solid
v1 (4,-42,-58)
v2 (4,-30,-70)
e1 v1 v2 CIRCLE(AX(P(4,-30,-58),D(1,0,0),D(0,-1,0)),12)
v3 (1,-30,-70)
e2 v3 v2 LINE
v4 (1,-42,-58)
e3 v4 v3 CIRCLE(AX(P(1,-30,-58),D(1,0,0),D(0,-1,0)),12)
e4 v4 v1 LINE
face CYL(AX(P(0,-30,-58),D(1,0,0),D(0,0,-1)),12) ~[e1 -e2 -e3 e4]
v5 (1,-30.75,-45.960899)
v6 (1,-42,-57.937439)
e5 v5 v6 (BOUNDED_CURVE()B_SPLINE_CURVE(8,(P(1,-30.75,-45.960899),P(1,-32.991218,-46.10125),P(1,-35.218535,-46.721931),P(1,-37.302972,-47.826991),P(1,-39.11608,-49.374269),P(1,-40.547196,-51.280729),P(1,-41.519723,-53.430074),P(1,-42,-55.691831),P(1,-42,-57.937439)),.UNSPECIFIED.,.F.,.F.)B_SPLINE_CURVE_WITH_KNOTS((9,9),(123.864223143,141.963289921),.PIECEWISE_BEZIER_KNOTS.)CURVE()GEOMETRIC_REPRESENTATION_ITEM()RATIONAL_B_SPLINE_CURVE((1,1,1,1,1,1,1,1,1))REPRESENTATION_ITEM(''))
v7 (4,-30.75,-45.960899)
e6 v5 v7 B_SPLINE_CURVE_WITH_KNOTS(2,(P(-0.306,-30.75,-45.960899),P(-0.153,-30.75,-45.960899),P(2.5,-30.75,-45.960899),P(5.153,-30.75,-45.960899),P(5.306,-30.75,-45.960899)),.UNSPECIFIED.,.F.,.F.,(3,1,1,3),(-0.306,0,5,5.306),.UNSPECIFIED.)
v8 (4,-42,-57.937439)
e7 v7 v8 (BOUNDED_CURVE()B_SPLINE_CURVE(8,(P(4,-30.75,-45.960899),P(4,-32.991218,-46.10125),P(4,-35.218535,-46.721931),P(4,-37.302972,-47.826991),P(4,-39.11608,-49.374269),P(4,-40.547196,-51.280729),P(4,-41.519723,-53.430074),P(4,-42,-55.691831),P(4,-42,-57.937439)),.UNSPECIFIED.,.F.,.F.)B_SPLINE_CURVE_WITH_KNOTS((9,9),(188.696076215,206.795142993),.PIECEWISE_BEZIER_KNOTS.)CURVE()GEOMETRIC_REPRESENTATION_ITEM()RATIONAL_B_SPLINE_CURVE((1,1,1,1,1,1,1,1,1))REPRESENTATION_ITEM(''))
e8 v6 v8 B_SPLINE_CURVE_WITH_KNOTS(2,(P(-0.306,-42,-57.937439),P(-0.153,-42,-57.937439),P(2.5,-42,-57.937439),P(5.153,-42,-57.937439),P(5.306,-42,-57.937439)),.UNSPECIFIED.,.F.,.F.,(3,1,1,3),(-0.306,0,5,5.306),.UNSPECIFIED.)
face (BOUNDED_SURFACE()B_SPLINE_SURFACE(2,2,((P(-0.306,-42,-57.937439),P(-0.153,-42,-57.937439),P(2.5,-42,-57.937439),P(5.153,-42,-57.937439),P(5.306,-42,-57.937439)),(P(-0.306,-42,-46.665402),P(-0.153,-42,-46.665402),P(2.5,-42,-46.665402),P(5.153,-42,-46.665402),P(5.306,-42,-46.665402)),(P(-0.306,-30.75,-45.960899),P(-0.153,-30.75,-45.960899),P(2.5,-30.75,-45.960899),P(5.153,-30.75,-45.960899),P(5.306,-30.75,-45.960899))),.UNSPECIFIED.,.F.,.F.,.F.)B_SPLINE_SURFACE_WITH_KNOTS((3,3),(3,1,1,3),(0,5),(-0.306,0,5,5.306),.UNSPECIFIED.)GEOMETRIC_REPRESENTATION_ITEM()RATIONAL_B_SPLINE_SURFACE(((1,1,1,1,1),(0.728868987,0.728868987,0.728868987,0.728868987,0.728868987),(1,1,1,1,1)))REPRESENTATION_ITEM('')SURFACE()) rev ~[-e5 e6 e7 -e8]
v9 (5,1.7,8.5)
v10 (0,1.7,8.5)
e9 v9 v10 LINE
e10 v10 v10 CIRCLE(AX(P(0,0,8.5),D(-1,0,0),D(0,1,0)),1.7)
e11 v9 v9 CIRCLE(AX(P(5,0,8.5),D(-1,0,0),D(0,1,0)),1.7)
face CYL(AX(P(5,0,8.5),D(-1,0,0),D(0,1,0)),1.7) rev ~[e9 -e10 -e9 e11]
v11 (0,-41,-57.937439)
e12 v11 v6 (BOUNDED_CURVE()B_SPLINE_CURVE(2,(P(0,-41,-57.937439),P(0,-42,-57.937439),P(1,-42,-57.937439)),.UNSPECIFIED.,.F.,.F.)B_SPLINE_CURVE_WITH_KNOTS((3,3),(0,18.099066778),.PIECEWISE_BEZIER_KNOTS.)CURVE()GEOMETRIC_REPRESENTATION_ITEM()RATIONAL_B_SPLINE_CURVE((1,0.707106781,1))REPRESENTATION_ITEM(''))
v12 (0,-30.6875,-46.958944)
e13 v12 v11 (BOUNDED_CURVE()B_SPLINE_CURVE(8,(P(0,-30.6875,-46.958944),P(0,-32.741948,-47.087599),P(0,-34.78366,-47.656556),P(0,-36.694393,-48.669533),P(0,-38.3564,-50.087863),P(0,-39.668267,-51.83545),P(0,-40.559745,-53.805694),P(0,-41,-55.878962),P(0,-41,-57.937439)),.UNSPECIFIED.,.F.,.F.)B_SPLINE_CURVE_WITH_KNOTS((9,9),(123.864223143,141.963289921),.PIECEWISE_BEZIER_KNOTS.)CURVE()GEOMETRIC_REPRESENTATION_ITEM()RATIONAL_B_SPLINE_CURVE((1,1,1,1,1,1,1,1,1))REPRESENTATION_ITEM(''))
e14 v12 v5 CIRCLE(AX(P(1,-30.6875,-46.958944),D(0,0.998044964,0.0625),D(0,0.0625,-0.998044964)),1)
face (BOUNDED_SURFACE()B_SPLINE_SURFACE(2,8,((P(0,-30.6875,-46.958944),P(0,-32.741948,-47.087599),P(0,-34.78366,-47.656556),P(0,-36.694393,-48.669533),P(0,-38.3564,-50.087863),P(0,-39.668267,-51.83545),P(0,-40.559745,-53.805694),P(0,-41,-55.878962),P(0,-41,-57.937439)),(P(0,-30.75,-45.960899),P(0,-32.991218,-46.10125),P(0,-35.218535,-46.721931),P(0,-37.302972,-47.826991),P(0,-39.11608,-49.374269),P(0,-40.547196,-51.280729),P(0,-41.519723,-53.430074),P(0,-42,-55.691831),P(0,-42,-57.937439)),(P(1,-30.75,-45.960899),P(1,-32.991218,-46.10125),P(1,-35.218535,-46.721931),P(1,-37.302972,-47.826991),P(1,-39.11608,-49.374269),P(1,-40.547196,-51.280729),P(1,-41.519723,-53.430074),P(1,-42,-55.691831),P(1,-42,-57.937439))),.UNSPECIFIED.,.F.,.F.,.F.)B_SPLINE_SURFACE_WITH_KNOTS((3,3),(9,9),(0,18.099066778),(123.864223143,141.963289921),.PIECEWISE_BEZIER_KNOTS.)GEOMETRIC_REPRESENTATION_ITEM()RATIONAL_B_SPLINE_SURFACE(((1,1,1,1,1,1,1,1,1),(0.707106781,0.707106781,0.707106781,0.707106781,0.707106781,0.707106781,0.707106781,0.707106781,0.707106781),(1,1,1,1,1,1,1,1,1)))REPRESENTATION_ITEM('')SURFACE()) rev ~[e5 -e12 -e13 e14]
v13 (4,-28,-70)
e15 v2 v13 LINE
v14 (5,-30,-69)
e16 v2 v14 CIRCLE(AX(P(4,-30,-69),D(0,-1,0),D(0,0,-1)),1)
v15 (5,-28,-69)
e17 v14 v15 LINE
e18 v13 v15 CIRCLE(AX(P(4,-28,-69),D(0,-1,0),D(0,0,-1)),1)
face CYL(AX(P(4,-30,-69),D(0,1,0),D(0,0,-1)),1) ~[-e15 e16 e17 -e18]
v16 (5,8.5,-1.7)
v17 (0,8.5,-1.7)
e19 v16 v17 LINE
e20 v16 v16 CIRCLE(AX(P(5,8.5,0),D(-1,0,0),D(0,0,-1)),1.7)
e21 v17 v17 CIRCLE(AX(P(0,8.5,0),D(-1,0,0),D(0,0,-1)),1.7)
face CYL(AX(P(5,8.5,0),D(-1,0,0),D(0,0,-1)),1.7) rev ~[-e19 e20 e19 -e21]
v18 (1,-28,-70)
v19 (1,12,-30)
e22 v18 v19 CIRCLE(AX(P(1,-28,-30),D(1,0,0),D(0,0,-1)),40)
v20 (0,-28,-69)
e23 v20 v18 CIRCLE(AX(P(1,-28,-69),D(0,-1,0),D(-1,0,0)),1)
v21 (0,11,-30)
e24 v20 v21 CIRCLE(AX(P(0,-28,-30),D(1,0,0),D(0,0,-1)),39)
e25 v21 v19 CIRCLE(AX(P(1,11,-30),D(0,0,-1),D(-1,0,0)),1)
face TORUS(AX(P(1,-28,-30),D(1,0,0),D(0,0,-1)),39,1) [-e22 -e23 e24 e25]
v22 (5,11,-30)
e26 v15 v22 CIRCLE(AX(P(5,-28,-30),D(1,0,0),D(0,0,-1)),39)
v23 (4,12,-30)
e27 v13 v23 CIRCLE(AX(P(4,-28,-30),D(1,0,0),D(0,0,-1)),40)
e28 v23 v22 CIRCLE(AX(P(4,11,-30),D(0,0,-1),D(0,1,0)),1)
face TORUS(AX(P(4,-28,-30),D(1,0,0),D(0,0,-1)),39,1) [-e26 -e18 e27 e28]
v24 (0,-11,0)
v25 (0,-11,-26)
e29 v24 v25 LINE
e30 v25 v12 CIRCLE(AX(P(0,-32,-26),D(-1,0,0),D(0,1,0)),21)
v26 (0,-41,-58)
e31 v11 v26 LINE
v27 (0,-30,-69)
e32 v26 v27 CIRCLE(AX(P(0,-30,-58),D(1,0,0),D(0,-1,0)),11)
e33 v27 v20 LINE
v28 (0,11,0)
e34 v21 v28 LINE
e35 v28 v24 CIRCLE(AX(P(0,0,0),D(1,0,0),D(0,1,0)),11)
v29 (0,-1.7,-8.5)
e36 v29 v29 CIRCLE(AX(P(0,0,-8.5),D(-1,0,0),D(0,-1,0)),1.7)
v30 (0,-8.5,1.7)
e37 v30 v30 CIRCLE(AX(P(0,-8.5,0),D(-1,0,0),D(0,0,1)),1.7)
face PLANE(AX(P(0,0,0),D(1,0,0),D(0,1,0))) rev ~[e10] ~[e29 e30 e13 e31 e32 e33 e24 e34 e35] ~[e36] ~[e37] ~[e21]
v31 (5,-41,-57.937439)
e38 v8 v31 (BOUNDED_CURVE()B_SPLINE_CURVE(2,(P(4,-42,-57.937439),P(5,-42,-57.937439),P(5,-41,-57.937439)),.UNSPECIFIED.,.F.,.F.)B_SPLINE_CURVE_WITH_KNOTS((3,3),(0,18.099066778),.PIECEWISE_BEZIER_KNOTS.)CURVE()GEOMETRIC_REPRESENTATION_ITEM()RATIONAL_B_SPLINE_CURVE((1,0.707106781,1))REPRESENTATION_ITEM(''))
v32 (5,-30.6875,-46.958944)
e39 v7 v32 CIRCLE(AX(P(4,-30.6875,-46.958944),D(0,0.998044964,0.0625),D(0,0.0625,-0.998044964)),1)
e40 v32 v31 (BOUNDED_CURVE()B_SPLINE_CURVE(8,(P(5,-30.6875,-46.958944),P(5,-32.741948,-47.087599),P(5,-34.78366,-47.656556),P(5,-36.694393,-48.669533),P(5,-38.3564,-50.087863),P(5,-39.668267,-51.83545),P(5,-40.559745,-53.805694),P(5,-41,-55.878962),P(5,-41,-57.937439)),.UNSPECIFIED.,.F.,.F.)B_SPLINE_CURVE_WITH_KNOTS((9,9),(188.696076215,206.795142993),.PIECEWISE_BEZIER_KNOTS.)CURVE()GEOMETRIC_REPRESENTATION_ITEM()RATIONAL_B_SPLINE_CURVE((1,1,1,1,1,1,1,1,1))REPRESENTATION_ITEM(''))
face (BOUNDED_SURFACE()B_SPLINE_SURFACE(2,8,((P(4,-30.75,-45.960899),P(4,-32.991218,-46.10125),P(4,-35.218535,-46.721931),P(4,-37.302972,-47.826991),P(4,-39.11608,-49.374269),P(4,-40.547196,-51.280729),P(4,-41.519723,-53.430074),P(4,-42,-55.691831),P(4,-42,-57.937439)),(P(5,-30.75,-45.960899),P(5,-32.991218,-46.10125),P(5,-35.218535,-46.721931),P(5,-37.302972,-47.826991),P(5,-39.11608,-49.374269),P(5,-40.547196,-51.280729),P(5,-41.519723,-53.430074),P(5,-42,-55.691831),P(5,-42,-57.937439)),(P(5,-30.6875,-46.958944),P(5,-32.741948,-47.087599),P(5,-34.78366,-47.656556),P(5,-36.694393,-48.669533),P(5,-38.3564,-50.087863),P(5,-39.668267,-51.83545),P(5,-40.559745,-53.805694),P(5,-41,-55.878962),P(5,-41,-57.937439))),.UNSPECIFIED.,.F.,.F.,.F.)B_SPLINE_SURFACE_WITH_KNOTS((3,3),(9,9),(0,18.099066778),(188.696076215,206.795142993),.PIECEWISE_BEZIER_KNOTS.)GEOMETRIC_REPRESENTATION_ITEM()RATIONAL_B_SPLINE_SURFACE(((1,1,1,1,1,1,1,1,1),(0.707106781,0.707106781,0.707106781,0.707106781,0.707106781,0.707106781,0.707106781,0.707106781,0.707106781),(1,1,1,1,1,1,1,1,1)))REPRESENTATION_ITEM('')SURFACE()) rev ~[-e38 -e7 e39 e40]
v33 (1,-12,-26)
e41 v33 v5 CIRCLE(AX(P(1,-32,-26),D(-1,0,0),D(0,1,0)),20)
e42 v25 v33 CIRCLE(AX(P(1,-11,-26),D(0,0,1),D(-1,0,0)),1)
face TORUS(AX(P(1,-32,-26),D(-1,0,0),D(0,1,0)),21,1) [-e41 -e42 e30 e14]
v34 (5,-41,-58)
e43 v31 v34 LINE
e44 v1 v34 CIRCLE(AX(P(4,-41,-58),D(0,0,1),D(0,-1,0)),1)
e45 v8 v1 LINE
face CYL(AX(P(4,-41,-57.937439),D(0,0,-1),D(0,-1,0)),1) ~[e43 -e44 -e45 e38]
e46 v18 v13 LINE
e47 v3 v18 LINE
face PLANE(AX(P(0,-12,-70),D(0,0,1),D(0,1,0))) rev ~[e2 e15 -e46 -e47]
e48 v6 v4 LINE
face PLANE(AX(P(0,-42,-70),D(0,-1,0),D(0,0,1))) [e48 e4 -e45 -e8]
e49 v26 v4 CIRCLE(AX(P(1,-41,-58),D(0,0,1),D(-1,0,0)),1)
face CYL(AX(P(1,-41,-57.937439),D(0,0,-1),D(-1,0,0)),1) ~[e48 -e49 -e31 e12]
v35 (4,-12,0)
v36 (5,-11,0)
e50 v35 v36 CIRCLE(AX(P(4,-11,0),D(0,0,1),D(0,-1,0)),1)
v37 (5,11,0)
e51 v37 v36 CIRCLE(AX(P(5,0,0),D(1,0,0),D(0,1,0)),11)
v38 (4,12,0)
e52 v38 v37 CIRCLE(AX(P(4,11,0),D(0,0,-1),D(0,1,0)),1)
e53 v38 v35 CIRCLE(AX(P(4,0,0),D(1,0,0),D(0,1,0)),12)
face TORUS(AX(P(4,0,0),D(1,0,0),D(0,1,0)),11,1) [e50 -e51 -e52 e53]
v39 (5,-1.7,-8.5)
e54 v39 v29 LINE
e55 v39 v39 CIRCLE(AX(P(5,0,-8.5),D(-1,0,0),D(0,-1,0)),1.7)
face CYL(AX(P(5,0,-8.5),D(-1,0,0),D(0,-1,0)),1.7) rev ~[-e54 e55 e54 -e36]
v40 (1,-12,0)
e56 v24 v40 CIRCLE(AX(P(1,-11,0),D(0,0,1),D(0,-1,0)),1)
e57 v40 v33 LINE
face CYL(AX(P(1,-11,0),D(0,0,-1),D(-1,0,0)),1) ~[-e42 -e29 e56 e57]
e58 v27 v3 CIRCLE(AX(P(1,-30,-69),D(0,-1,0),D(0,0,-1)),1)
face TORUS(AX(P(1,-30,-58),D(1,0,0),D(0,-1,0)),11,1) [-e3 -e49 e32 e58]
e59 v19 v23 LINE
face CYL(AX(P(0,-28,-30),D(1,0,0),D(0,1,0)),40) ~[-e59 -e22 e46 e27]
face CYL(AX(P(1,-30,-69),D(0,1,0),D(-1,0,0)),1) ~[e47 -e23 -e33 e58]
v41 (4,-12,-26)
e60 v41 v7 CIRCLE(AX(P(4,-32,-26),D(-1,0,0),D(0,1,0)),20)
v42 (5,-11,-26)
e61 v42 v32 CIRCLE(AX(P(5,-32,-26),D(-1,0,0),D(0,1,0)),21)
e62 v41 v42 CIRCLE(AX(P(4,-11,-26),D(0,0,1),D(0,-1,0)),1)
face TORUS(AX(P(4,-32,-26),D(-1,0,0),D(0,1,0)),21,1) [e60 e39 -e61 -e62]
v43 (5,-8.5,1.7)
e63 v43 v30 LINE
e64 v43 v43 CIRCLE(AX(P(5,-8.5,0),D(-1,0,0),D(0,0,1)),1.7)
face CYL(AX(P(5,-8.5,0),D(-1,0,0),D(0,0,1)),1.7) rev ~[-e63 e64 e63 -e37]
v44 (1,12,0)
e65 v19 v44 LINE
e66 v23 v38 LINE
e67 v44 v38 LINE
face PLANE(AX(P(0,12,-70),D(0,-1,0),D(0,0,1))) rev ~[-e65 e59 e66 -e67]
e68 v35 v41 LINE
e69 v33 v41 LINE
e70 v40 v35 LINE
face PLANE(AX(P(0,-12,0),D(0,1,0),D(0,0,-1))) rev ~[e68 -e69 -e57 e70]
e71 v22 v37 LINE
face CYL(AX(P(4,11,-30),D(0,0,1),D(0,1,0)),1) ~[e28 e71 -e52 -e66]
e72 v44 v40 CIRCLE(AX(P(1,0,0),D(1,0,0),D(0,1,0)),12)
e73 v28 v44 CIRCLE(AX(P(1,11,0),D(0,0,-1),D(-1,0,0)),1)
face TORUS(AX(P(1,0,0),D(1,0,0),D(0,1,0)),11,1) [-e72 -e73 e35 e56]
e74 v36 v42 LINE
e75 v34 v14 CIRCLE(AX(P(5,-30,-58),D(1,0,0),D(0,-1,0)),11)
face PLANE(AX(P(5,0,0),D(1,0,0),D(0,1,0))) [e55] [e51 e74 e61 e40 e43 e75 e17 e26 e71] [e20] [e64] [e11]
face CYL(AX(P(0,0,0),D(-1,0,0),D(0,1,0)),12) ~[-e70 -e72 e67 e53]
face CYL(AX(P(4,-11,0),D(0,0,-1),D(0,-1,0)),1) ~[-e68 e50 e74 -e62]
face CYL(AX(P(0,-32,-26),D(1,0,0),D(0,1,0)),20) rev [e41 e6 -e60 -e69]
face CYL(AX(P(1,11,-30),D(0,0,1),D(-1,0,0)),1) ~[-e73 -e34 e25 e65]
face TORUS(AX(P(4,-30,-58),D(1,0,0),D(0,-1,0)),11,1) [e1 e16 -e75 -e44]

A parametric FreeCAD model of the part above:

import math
import FreeCAD as App
import Part
import Sketcher
from FreeCAD import Vector


def edges_at(feature, points):
    """Names of the edges that pass closest to the given points."""
    edges = feature.Shape.Edges
    near = lambda p: min(range(len(edges)), key=lambda i: edges[i].distToShape(Part.Vertex(*p))[0])
    return sorted({f"Edge{near(p) + 1}" for p in points})

doc = App.newDocument("Part")
params = doc.addObject("Spreadsheet::Sheet", "Params")
for row, (alias, value) in enumerate([
    ("sketch1_radius", "12 mm"),
    ("sketch1_width", "30 mm"),
    ("sketch1_height", "24 mm"),
    ("sketch1_height2", "70 mm"),
    ("pad1_length", "5 mm"),
    ("fillet_radius", "20 mm"),
    ("fillet2_radius", "40 mm"),
    ("fillet3_radius", "12 mm"),
    ("sketch2_diameter", "3.4 mm"),
    ("hole_diameter", "3.4 mm"),
    ("fillet4_radius", "1 mm"),
], start=1):
    params.set(f"A{row}", alias)
    params.set(f"B{row}", "=" + value)
    params.setAlias(f"B{row}", alias)

body = doc.addObject("PartDesign::Body", "Body")

# Sketch on YZ plane
sketch1 = body.newObject("Sketcher::SketchObject", "Sketch")
sketch1.AttachmentSupport = (doc.getObject("YZ_Plane"), [""])
sketch1.MapMode = "FlatFace"
sketch1.addGeometry([
    Part.ArcOfCircle(Part.Circle(Vector(0, 0, 0), Vector(0, 0, 1), 12), math.radians(0), math.radians(180)),  # 0
    Part.LineSegment(Vector(-12, 0, 0), Vector(-12, -46, 0)),  # 1
    Part.LineSegment(Vector(-12, -46, 0), Vector(-42, -46, 0)),  # 2
    Part.LineSegment(Vector(-42, -46, 0), Vector(-42, -70, 0)),  # 3
    Part.LineSegment(Vector(-42, -70, 0), Vector(12, -70, 0)),  # 4
    Part.LineSegment(Vector(12, -70, 0), Vector(12, 0, 0)),  # 5
], False)
sketch1.addConstraint([
    Sketcher.Constraint("Tangent", 0, 2, 1, 1),
    Sketcher.Constraint("Coincident", 1, 2, 2, 1),
    Sketcher.Constraint("Coincident", 2, 2, 3, 1),
    Sketcher.Constraint("Coincident", 3, 2, 4, 1),
    Sketcher.Constraint("Coincident", 4, 2, 5, 1),
    Sketcher.Constraint("Tangent", 5, 2, 0, 1),
    Sketcher.Constraint("Vertical", 1),
    Sketcher.Constraint("Horizontal", 2),
    Sketcher.Constraint("Vertical", 3),
    Sketcher.Constraint("Horizontal", 4),
    Sketcher.Constraint("Vertical", 5),
    Sketcher.Constraint("Coincident", 0, 3, -1, 1),
    Sketcher.Constraint("Radius", 0, 12.0),
    Sketcher.Constraint("DistanceX", 2, 2, 2, 1, 30.0),
    Sketcher.Constraint("DistanceY", 3, 2, 3, 1, 24.0),
    Sketcher.Constraint("DistanceY", 5, 1, 5, 2, 70.0),
])
sketch1.setExpression("Constraints[12]", "Params.sketch1_radius")
sketch1.setExpression("Constraints[13]", "Params.sketch1_width")
sketch1.setExpression("Constraints[14]", "Params.sketch1_height")
sketch1.setExpression("Constraints[15]", "Params.sketch1_height2")
pad1 = body.newObject("PartDesign::Pad", "Pad")
pad1.Profile = sketch1
pad1.setExpression("Length", "Params.pad1_length")
doc.recompute()

fillet = body.newObject("PartDesign::Fillet", "Fillet")
fillet.Base = (pad1, edges_at(pad1, [(2.5, -12, -46)]))
fillet.setExpression("Radius", "Params.fillet_radius")
doc.recompute()

fillet2 = body.newObject("PartDesign::Fillet", "Fillet001")
fillet2.Base = (fillet, edges_at(fillet, [(2.5, 12, -70)]))
fillet2.setExpression("Radius", "Params.fillet2_radius")
doc.recompute()

fillet3 = body.newObject("PartDesign::Fillet", "Fillet002")
fillet3.Base = (fillet2, edges_at(fillet2, [(2.5, -42, -46), (2.5, -42, -70)]))
fillet3.setExpression("Radius", "Params.fillet3_radius")

# Sketch on YZ plane
sketch2 = body.newObject("Sketcher::SketchObject", "Sketch001")
sketch2.AttachmentSupport = (doc.getObject("YZ_Plane"), [""])
sketch2.MapMode = "FlatFace"
sketch2.AttachmentOffset = App.Placement(Vector(0, 0, 5), App.Rotation())
sketch2.addGeometry(Part.Circle(Vector(8.5, 0, 0), Vector(0, 0, 1), 1.7), False)
sketch2.addConstraint([
    Sketcher.Constraint("PointOnObject", 0, 3, -1),
    Sketcher.Constraint("Diameter", 0, 3.4),
    Sketcher.Constraint("DistanceX", -1, 1, 0, 3, 8.5),
])
sketch2.setExpression("Constraints[1]", "Params.sketch2_diameter")
doc.recompute()
hole = body.newObject("PartDesign::Hole", "Hole")
hole.Profile = sketch2
hole.ThreadType = "None"
hole.setExpression("Diameter", "Params.hole_diameter")
hole.DepthType = "ThroughAll"
doc.recompute()

polarpattern = body.newObject("PartDesign::PolarPattern", "PolarPattern")
polarpattern.Originals = [hole]
polarpattern.Axis = (doc.getObject("X_Axis"), [""])
polarpattern.Angle = 360
polarpattern.Occurrences = 4
body.Tip = polarpattern
doc.recompute()

fillet4 = body.newObject("PartDesign::Fillet", "Fillet003")
fillet4.Base = (polarpattern, edges_at(polarpattern, [
    (5, -29, -70),
    (5, -38.485, -66.485),
    (5, -42, -57.969),
    (5, -38.746, -49.722),
    (5, -12, -13),
    (5, 0, 12),
    (5, 12, -15),
    (5, 0.284, -58.284),
    (0, 12, -15),
    (0, 0, 12),
    (0, -12, -13),
    (0, -38.746, -49.722),
    (0, -42, -57.969),
    (0, -38.485, -66.485),
    (0, -29, -70),
    (0, 0.284, -58.284),
]))
fillet4.setExpression("Radius", "Params.fillet4_radius")

doc.recompute()
